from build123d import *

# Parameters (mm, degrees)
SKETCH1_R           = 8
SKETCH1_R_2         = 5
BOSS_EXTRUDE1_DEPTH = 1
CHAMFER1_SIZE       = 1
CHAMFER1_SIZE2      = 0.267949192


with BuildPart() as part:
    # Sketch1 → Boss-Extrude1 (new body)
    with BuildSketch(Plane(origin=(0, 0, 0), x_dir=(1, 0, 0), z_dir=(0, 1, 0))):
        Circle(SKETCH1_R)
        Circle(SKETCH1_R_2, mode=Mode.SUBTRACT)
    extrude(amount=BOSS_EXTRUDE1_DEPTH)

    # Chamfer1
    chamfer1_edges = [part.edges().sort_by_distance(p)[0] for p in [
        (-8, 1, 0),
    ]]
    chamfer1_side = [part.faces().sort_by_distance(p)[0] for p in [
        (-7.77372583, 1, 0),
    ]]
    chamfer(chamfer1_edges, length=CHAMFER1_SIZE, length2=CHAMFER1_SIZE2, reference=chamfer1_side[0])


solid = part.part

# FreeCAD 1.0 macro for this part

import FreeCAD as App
import Part
import Sketcher

V = App.Vector
Q = App.Units.Quantity


def edges_at(feature, points):
    """Names of the edges that pass closest to the given points."""
    edges = feature.Shape.Edges
    near = lambda p: min(range(len(edges)), key=lambda i: edges[i].distToShape(Part.Vertex(*p))[0])
    return sorted({f"Edge{near(p) + 1}" for p in points})

doc = App.newDocument("Part")
body = doc.addObject("PartDesign::Body", "Body")

sketch1 = body.newObject("Sketcher::SketchObject", "Sketch")
sketch1.AttachmentSupport = (doc.getObject("XZ_Plane"), [""])
sketch1.MapMode = "FlatFace"
sketch1.addGeometry([
    Part.Circle(V(0, 0, 0), V(0, 0, 1), 8),
    Part.Circle(V(0, 0, 0), V(0, 0, 1), 5),
], False)
sketch1.addConstraint([
    Sketcher.Constraint("Coincident", 0, 3, -1, 1),
    Sketcher.Constraint("Coincident", 1, 3, -1, 1),
    Sketcher.Constraint("Diameter", 0, Q("16 mm")),
    Sketcher.Constraint("Diameter", 1, Q("10 mm")),
])
pad1 = body.newObject("PartDesign::Pad", "Pad")
pad1.Profile = sketch1
pad1.Length = 1
pad1.Reversed = True
doc.recompute()

chamfer = body.newObject("PartDesign::Chamfer", "Chamfer")
chamfer.Base = (pad1, edges_at(pad1, [(-8, 1, 0)]))
chamfer.ChamferType = "Two distances"
chamfer.Size = 1
chamfer.Size2 = 0.267949
chamfer.FlipDirection = True

doc.recompute()
